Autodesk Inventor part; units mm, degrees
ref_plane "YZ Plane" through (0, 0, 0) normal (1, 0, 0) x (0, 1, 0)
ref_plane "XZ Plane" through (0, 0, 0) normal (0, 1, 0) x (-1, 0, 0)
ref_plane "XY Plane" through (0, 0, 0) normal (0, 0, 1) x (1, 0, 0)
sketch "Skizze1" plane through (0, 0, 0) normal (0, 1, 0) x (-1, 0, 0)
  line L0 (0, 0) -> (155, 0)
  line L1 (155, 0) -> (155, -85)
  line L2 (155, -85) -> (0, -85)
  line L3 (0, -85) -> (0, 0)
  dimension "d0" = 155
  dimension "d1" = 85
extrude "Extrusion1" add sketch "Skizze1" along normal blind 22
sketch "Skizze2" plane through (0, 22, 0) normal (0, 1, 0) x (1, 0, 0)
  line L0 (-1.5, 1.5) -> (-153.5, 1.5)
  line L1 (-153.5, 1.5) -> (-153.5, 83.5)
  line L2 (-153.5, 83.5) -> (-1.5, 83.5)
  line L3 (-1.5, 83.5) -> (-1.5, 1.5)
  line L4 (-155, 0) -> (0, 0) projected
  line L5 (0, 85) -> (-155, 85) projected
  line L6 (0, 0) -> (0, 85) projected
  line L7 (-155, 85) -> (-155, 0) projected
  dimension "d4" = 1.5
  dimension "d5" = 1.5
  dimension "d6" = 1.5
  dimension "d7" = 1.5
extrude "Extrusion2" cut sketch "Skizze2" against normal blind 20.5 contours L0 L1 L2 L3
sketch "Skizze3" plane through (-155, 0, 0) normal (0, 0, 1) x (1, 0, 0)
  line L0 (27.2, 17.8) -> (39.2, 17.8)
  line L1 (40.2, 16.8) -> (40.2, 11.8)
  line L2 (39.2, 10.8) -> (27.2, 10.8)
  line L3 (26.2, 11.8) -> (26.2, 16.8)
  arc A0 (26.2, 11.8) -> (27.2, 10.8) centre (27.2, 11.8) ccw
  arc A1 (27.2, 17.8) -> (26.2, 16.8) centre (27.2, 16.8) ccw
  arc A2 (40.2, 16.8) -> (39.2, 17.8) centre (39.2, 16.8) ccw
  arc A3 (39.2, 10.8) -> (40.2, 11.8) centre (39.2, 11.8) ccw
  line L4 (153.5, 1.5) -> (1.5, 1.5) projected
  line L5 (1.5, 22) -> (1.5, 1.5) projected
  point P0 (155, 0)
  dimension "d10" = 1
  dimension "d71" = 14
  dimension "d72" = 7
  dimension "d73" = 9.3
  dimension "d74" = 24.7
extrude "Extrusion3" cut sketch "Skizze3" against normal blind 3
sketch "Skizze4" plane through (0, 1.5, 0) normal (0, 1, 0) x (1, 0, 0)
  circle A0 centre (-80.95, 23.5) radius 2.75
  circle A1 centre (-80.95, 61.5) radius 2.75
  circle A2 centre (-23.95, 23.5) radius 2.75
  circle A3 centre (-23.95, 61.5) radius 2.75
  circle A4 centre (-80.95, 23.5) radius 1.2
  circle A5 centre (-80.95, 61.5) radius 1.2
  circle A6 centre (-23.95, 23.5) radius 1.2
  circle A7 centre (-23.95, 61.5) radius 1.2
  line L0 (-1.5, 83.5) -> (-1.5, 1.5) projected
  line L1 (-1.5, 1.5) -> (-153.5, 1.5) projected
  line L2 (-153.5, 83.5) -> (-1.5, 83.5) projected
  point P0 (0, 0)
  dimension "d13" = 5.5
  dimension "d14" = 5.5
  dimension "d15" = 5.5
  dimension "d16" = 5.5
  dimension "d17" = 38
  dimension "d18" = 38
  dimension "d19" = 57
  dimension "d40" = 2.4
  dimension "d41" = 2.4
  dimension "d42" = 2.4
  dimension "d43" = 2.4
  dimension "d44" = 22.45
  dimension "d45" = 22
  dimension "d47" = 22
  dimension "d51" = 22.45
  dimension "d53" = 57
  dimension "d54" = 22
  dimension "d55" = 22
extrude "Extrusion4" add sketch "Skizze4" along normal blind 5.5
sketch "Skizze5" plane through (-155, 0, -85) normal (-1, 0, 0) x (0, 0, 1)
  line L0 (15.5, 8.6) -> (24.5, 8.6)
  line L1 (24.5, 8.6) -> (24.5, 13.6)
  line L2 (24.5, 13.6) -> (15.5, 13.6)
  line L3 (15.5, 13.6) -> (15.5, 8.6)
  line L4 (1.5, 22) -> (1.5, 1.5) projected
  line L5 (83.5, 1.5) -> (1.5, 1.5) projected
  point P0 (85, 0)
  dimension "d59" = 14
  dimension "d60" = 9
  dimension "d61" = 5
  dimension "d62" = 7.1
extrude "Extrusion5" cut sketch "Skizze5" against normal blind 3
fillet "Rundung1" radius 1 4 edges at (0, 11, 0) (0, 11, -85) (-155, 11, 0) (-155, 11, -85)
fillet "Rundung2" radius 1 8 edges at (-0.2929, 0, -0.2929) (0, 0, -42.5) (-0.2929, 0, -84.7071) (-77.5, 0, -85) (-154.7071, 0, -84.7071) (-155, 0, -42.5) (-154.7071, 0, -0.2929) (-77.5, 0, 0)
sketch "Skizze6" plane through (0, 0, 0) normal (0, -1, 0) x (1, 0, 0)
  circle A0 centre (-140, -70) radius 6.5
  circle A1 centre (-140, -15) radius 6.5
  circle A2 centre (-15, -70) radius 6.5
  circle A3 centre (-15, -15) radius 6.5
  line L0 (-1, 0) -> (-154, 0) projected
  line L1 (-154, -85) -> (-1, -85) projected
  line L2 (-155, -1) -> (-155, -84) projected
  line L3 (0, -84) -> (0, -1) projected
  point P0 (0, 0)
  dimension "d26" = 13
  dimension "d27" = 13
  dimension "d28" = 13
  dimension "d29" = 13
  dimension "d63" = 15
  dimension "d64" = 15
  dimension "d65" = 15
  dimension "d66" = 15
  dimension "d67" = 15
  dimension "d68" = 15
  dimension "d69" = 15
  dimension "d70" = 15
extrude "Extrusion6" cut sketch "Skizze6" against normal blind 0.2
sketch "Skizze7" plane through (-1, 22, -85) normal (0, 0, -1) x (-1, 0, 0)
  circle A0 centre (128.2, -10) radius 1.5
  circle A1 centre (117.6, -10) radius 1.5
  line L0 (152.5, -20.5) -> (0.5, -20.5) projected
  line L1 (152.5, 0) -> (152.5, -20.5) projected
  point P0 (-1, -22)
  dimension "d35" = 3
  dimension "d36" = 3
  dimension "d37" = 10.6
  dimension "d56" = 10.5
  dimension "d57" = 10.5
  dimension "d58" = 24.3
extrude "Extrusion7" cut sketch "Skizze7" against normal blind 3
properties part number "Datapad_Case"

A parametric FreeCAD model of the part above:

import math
import FreeCAD as App
import Part
import Sketcher

V = App.Vector
Q = App.Units.Quantity


def edges_at(feature, points):
    """Names of the edges that pass closest to the given points."""
    edges = feature.Shape.Edges
    near = lambda p: min(range(len(edges)), key=lambda i: edges[i].distToShape(Part.Vertex(*p))[0])
    return sorted({f"Edge{near(p) + 1}" for p in points})


def add_polygon(sketch, points):
    """Adds a closed chain of lines whose ends are joined by coincident constraints."""
    first, n = sketch.GeometryCount, len(points)
    for a, b in zip(points, points[1:] + points[:1]):
        sketch.addGeometry(Part.LineSegment(App.Vector(*a, 0), App.Vector(*b, 0)), False)
    for i in range(n):
        sketch.addConstraint(Sketcher.Constraint("Coincident", first + i, 2, first + (i + 1) % n, 1))

doc = App.newDocument("Part")
params = doc.addObject("Spreadsheet::Sheet", "Params")
for row, (alias, value) in enumerate([
    ("sketch1_width", "155 mm"),
    ("sketch1_height", "85 mm"),
    ("pad1_length", "22 mm"),
    ("sketch2_width", "152 mm"),
    ("sketch2_height", "82 mm"),
    ("pocket1_length", "20.5 mm"),
    ("sketch3_radius", "1 mm"),
    ("sketch3_width", "12 mm"),
    ("pocket2_length", "3 mm"),
    ("sketch4_diameter", "5.5 mm"),
    ("sketch4_diameter2", "2.4 mm"),
    ("pad2_length", "5.5 mm"),
    ("sketch5_width", "5 mm"),
    ("sketch5_height", "9 mm"),
    ("pocket3_length", "3 mm"),
    ("fillet_radius", "1 mm"),
    ("fillet2_radius", "1 mm"),
    ("sketch6_diameter", "13 mm"),
    ("pocket4_length", "0.2 mm"),
    ("sketch7_diameter", "3 mm"),
    ("pocket5_length", "3 mm"),
], start=1):
    params.set(f"A{row}", alias)
    params.set(f"B{row}", "=" + value)
    params.setAlias(f"B{row}", alias)

body = doc.addObject("PartDesign::Body", "Body")

# Sketch on XZ plane
sketch1 = doc.addObject("Sketcher::SketchObject", "Sketch")
body.addObject(sketch1)
sketch1.AttachmentSupport = (doc.XZ_Plane, [""])
sketch1.MapMode = "FlatFace"
add_polygon(sketch1, [(-155, 0), (0, 0), (0, -85), (-155, -85)])  # lines 0-3
sketch1.addConstraint([
    Sketcher.Constraint("Horizontal", 0),
    Sketcher.Constraint("Vertical", 1),
    Sketcher.Constraint("Horizontal", 2),
    Sketcher.Constraint("Vertical", 3),
    Sketcher.Constraint("Coincident", 0, 2, -1, 1),
    Sketcher.Constraint("DistanceX", 0, 1, 0, 2, Q("155 mm")),
    Sketcher.Constraint("DistanceY", 1, 2, 1, 1, Q("85 mm")),
])
sketch1.setExpression("Constraints[9]", "Params.sketch1_width")
sketch1.setExpression("Constraints[10]", "Params.sketch1_height")
pad1 = doc.addObject("PartDesign::Pad", "Pad")
body.addObject(pad1)
pad1.Profile = sketch1
pad1.setExpression("Length", "Params.pad1_length")
pad1.Reversed = True

# Sketch on XZ plane
sketch2 = doc.addObject("Sketcher::SketchObject", "Sketch001")
body.addObject(sketch2)
sketch2.AttachmentSupport = (doc.XZ_Plane, [""])
sketch2.MapMode = "FlatFace"
sketch2.AttachmentOffset = App.Placement(V(0, 0, -22), App.Rotation())
add_polygon(sketch2, [(-154, -2), (-2, -2), (-2, -84), (-154, -84)])  # lines 0-3
sketch2.addConstraint([
    Sketcher.Constraint("Horizontal", 0),
    Sketcher.Constraint("Vertical", 1),
    Sketcher.Constraint("Horizontal", 2),
    Sketcher.Constraint("Vertical", 3),
    Sketcher.Constraint("DistanceX", 0, 2, -1, 1, Q("1.5 mm")),
    Sketcher.Constraint("DistanceY", 0, 2, -1, 1, Q("1.5 mm")),
    Sketcher.Constraint("DistanceX", 0, 1, 0, 2, Q("152 mm")),
    Sketcher.Constraint("DistanceY", 1, 2, 1, 1, Q("82 mm")),
])
sketch2.setExpression("Constraints[10]", "Params.sketch2_width")
sketch2.setExpression("Constraints[11]", "Params.sketch2_height")
pocket1 = doc.addObject("PartDesign::Pocket", "Pocket")
body.addObject(pocket1)
pocket1.Profile = sketch2
pocket1.setExpression("Length", "Params.pocket1_length")
pocket1.Reversed = True

# Sketch on XY plane
sketch3 = doc.addObject("Sketcher::SketchObject", "Sketch002")
body.addObject(sketch3)
sketch3.AttachmentSupport = (doc.XY_Plane, [""])
sketch3.MapMode = "FlatFace"
sketch3.addGeometry([
    Part.LineSegment(V(-115.8, 17.8, 0), V(-127.8, 17.8, 0)),  # 0
    Part.ArcOfCircle(Part.Circle(V(-127.8, 16.8, 0), V(0, 0, 1), 1), math.radians(90), math.radians(180)),  # 1
    Part.LineSegment(V(-128.8, 16.8, 0), V(-128.8, 11.8, 0)),  # 2
    Part.ArcOfCircle(Part.Circle(V(-127.8, 11.8, 0), V(0, 0, 1), 1), math.radians(180), math.radians(270)),  # 3
    Part.LineSegment(V(-127.8, 10.8, 0), V(-115.8, 10.8, 0)),  # 4
    Part.ArcOfCircle(Part.Circle(V(-115.8, 11.8, 0), V(0, 0, 1), 1), math.radians(-90), math.radians(0)),  # 5
    Part.LineSegment(V(-114.8, 11.8, 0), V(-114.8, 16.8, 0)),  # 6
    Part.ArcOfCircle(Part.Circle(V(-115.8, 16.8, 0), V(0, 0, 1), 1), math.radians(0), math.radians(90)),  # 7
], False)
sketch3.addConstraint([
    Sketcher.Constraint("Tangent", 0, 2, 1, 1),
    Sketcher.Constraint("Tangent", 1, 2, 2, 1),
    Sketcher.Constraint("Tangent", 2, 2, 3, 1),
    Sketcher.Constraint("Tangent", 3, 2, 4, 1),
    Sketcher.Constraint("Tangent", 4, 2, 5, 1),
    Sketcher.Constraint("Tangent", 5, 2, 6, 1),
    Sketcher.Constraint("Tangent", 6, 2, 7, 1),
    Sketcher.Constraint("Tangent", 7, 2, 0, 1),
    Sketcher.Constraint("Horizontal", 0),
    Sketcher.Constraint("Vertical", 2),
    Sketcher.Constraint("Horizontal", 4),
    Sketcher.Constraint("Vertical", 6),
    Sketcher.Constraint("Equal", 1, 3),
    Sketcher.Constraint("Equal", 3, 5),
    Sketcher.Constraint("Equal", 5, 7),
    Sketcher.Constraint("Radius", 1, Q("1 mm")),
    Sketcher.Constraint("DistanceY", 3, 2, 0, 2, Q("7 mm")),
    Sketcher.Constraint("DistanceX", 0, 2, 0, 1, Q("12 mm")),
    Sketcher.Constraint("DistanceX", 1, 3, -1, 1, Q("127.8 mm")),
    Sketcher.Constraint("DistanceY", -1, 1, 1, 3, Q("16.8 mm")),
])
sketch3.setExpression("Constraints[15]", "Params.sketch3_radius")
sketch3.setExpression("Constraints[17]", "Params.sketch3_width")
pocket2 = doc.addObject("PartDesign::Pocket", "Pocket001")
body.addObject(pocket2)
pocket2.Profile = sketch3
pocket2.setExpression("Length", "Params.pocket2_length")

# Sketch on XZ plane
sketch4 = doc.addObject("Sketcher::SketchObject", "Sketch003")
body.addObject(sketch4)
sketch4.AttachmentSupport = (doc.XZ_Plane, [""])
sketch4.MapMode = "FlatFace"
sketch4.AttachmentOffset = App.Placement(V(0, 0, -1.5), App.Rotation())
sketch4.addGeometry([
    Part.Circle(V(-81, -23.5, 0), V(0, 0, 1), 2.8),  # 0
    Part.Circle(V(-81, -23.5, 0), V(0, 0, 1), 1.2),  # 1
    Part.Circle(V(-81, -61.5, 0), V(0, 0, 1), 2.8),  # 2
    Part.Circle(V(-81, -61.5, 0), V(0, 0, 1), 1.2),  # 3
    Part.Circle(V(-23.9, -23.5, 0), V(0, 0, 1), 2.8),  # 4
    Part.Circle(V(-23.9, -23.5, 0), V(0, 0, 1), 1.2),  # 5
    Part.Circle(V(-23.9, -61.5, 0), V(0, 0, 1), 2.8),  # 6
    Part.Circle(V(-23.9, -61.5, 0), V(0, 0, 1), 1.2),  # 7
], False)
sketch4.addConstraint([
    Sketcher.Constraint("Coincident", 1, 3, 0, 3),
    Sketcher.Constraint("Coincident", 3, 3, 2, 3),
    Sketcher.Constraint("Coincident", 5, 3, 4, 3),
    Sketcher.Constraint("Coincident", 7, 3, 6, 3),
    Sketcher.Constraint("Equal", 0, 2),
    Sketcher.Constraint("Equal", 1, 3),
    Sketcher.Constraint("Equal", 2, 4),
    Sketcher.Constraint("Equal", 3, 5),
    Sketcher.Constraint("Equal", 4, 6),
    Sketcher.Constraint("Equal", 5, 7),
    Sketcher.Constraint("Horizontal", 1, 3, 4, 3),
    Sketcher.Constraint("Horizontal", 3, 3, 6, 3),
    Sketcher.Constraint("Vertical", 1, 3, 2, 3),
    Sketcher.Constraint("Vertical", 5, 3, 6, 3),
    Sketcher.Constraint("Diameter", 0, Q("5.5 mm")),
    Sketcher.Constraint("Diameter", 1, Q("2.4 mm")),
    Sketcher.Constraint("DistanceY", 2, 3, 0, 3, Q("38 mm")),
    Sketcher.Constraint("DistanceX", 0, 3, 4, 3, Q("57 mm")),
    Sketcher.Constraint("DistanceY", 0, 3, -1, 1, Q("23.5 mm")),
    Sketcher.Constraint("DistanceX", 0, 3, -1, 1, Q("80.95 mm")),
])
sketch4.setExpression("Constraints[14]", "Params.sketch4_diameter")
sketch4.setExpression("Constraints[15]", "Params.sketch4_diameter2")
pad2 = doc.addObject("PartDesign::Pad", "Pad001")
body.addObject(pad2)
pad2.Profile = sketch4
pad2.setExpression("Length", "Params.pad2_length")
pad2.Reversed = True

# Sketch on YZ plane
sketch5 = doc.addObject("Sketcher::SketchObject", "Sketch004")
body.addObject(sketch5)
sketch5.AttachmentSupport = (doc.YZ_Plane, [""])
sketch5.MapMode = "FlatFace"
sketch5.AttachmentOffset = App.Placement(V(0, 0, -155), App.Rotation())
add_polygon(sketch5, [(14, -70), (9, -70), (9, -60), (14, -60)])  # lines 0-3
sketch5.addConstraint([
    Sketcher.Constraint("Horizontal", 0),
    Sketcher.Constraint("Vertical", 1),
    Sketcher.Constraint("Horizontal", 2),
    Sketcher.Constraint("Vertical", 3),
    Sketcher.Constraint("DistanceX", 0, 2, 0, 1, Q("5 mm")),
    Sketcher.Constraint("DistanceY", 1, 1, 1, 2, Q("9 mm")),
    Sketcher.Constraint("DistanceX", -1, 1, 0, 2, Q("8.6 mm")),
    Sketcher.Constraint("DistanceY", 0, 2, -1, 1, Q("69.5 mm")),
])
sketch5.setExpression("Constraints[8]", "Params.sketch5_width")
sketch5.setExpression("Constraints[9]", "Params.sketch5_height")
pocket3 = doc.addObject("PartDesign::Pocket", "Pocket002")
body.addObject(pocket3)
pocket3.Profile = sketch5
pocket3.setExpression("Length", "Params.pocket3_length")
pocket3.Reversed = True
doc.recompute()

fillet = doc.addObject("PartDesign::Fillet", "Fillet")
body.addObject(fillet)
fillet.Base = (pocket3, edges_at(pocket3, [
    (0, 11, 0),
    (0, 11, -85),
    (-155, 11, 0),
    (-155, 11, -85),
]))
fillet.setExpression("Radius", "Params.fillet_radius")
doc.recompute()

fillet2 = doc.addObject("PartDesign::Fillet", "Fillet001")
body.addObject(fillet2)
fillet2.Base = (fillet, edges_at(fillet, [
    (-0.293, 0, -0.293),
    (0, 0, -42.5),
    (-0.293, 0, -84.707),
    (-77.5, 0, -85),
    (-154.707, 0, -84.707),
    (-155, 0, -42.5),
    (-154.707, 0, -0.293),
    (-77.5, 0, 0),
]))
fillet2.setExpression("Radius", "Params.fillet2_radius")

# Sketch on XZ plane
sketch6 = doc.addObject("Sketcher::SketchObject", "Sketch005")
body.addObject(sketch6)
sketch6.AttachmentSupport = (doc.XZ_Plane, [""])
sketch6.MapMode = "FlatFace"
sketch6.addGeometry([
    Part.Circle(V(-140, -70, 0), V(0, 0, 1), 6),
    Part.Circle(V(-140, -15, 0), V(0, 0, 1), 6),
    Part.Circle(V(-15, -70, 0), V(0, 0, 1), 6),
    Part.Circle(V(-15, -15, 0), V(0, 0, 1), 6),
], False)
sketch6.addConstraint([
    Sketcher.Constraint("Equal", 0, 1),
    Sketcher.Constraint("Equal", 1, 2),
    Sketcher.Constraint("Equal", 2, 3),
    Sketcher.Constraint("Horizontal", 0, 3, 2, 3),
    Sketcher.Constraint("Horizontal", 1, 3, 3, 3),
    Sketcher.Constraint("Vertical", 0, 3, 1, 3),
    Sketcher.Constraint("Vertical", 2, 3, 3, 3),
    Sketcher.Constraint("Diameter", 0, Q("13 mm")),
    Sketcher.Constraint("DistanceY", 1, 3, -1, 1, Q("15 mm")),
    Sketcher.Constraint("DistanceX", 2, 3, -1, 1, Q("15 mm")),
    Sketcher.Constraint("DistanceX", 0, 3, -1, 1, Q("140 mm")),
    Sketcher.Constraint("DistanceY", 0, 3, -1, 1, Q("70 mm")),
])
sketch6.setExpression("Constraints[7]", "Params.sketch6_diameter")
pocket4 = doc.addObject("PartDesign::Pocket", "Pocket003")
body.addObject(pocket4)
pocket4.Profile = sketch6
pocket4.setExpression("Length", "Params.pocket4_length")

# Sketch on XY plane
sketch7 = doc.addObject("Sketcher::SketchObject", "Sketch006")
body.addObject(sketch7)
sketch7.AttachmentSupport = (doc.XY_Plane, [""])
sketch7.MapMode = "FlatFace"
sketch7.AttachmentOffset = App.Placement(V(0, 0, -85), App.Rotation())
sketch7.addGeometry([
    Part.Circle(V(-129.2, 12, 0), V(0, 0, 1), 1.5),
    Part.Circle(V(-118.6, 12, 0), V(0, 0, 1), 1.5),
], False)
sketch7.addConstraint([
    Sketcher.Constraint("Equal", 0, 1),
    Sketcher.Constraint("Horizontal", 0, 3, 1, 3),
    Sketcher.Constraint("Diameter", 0, Q("3 mm")),
    Sketcher.Constraint("DistanceX", 0, 3, 1, 3, Q("10.6 mm")),
    Sketcher.Constraint("DistanceY", -1, 1, 0, 3, Q("12 mm")),
    Sketcher.Constraint("DistanceX", 0, 3, -1, 1, Q("129.2 mm")),
])
sketch7.setExpression("Constraints[2]", "Params.sketch7_diameter")
pocket5 = doc.addObject("PartDesign::Pocket", "Pocket004")
body.addObject(pocket5)
pocket5.Profile = sketch7
pocket5.setExpression("Length", "Params.pocket5_length")
pocket5.Reversed = True

doc.recompute()
